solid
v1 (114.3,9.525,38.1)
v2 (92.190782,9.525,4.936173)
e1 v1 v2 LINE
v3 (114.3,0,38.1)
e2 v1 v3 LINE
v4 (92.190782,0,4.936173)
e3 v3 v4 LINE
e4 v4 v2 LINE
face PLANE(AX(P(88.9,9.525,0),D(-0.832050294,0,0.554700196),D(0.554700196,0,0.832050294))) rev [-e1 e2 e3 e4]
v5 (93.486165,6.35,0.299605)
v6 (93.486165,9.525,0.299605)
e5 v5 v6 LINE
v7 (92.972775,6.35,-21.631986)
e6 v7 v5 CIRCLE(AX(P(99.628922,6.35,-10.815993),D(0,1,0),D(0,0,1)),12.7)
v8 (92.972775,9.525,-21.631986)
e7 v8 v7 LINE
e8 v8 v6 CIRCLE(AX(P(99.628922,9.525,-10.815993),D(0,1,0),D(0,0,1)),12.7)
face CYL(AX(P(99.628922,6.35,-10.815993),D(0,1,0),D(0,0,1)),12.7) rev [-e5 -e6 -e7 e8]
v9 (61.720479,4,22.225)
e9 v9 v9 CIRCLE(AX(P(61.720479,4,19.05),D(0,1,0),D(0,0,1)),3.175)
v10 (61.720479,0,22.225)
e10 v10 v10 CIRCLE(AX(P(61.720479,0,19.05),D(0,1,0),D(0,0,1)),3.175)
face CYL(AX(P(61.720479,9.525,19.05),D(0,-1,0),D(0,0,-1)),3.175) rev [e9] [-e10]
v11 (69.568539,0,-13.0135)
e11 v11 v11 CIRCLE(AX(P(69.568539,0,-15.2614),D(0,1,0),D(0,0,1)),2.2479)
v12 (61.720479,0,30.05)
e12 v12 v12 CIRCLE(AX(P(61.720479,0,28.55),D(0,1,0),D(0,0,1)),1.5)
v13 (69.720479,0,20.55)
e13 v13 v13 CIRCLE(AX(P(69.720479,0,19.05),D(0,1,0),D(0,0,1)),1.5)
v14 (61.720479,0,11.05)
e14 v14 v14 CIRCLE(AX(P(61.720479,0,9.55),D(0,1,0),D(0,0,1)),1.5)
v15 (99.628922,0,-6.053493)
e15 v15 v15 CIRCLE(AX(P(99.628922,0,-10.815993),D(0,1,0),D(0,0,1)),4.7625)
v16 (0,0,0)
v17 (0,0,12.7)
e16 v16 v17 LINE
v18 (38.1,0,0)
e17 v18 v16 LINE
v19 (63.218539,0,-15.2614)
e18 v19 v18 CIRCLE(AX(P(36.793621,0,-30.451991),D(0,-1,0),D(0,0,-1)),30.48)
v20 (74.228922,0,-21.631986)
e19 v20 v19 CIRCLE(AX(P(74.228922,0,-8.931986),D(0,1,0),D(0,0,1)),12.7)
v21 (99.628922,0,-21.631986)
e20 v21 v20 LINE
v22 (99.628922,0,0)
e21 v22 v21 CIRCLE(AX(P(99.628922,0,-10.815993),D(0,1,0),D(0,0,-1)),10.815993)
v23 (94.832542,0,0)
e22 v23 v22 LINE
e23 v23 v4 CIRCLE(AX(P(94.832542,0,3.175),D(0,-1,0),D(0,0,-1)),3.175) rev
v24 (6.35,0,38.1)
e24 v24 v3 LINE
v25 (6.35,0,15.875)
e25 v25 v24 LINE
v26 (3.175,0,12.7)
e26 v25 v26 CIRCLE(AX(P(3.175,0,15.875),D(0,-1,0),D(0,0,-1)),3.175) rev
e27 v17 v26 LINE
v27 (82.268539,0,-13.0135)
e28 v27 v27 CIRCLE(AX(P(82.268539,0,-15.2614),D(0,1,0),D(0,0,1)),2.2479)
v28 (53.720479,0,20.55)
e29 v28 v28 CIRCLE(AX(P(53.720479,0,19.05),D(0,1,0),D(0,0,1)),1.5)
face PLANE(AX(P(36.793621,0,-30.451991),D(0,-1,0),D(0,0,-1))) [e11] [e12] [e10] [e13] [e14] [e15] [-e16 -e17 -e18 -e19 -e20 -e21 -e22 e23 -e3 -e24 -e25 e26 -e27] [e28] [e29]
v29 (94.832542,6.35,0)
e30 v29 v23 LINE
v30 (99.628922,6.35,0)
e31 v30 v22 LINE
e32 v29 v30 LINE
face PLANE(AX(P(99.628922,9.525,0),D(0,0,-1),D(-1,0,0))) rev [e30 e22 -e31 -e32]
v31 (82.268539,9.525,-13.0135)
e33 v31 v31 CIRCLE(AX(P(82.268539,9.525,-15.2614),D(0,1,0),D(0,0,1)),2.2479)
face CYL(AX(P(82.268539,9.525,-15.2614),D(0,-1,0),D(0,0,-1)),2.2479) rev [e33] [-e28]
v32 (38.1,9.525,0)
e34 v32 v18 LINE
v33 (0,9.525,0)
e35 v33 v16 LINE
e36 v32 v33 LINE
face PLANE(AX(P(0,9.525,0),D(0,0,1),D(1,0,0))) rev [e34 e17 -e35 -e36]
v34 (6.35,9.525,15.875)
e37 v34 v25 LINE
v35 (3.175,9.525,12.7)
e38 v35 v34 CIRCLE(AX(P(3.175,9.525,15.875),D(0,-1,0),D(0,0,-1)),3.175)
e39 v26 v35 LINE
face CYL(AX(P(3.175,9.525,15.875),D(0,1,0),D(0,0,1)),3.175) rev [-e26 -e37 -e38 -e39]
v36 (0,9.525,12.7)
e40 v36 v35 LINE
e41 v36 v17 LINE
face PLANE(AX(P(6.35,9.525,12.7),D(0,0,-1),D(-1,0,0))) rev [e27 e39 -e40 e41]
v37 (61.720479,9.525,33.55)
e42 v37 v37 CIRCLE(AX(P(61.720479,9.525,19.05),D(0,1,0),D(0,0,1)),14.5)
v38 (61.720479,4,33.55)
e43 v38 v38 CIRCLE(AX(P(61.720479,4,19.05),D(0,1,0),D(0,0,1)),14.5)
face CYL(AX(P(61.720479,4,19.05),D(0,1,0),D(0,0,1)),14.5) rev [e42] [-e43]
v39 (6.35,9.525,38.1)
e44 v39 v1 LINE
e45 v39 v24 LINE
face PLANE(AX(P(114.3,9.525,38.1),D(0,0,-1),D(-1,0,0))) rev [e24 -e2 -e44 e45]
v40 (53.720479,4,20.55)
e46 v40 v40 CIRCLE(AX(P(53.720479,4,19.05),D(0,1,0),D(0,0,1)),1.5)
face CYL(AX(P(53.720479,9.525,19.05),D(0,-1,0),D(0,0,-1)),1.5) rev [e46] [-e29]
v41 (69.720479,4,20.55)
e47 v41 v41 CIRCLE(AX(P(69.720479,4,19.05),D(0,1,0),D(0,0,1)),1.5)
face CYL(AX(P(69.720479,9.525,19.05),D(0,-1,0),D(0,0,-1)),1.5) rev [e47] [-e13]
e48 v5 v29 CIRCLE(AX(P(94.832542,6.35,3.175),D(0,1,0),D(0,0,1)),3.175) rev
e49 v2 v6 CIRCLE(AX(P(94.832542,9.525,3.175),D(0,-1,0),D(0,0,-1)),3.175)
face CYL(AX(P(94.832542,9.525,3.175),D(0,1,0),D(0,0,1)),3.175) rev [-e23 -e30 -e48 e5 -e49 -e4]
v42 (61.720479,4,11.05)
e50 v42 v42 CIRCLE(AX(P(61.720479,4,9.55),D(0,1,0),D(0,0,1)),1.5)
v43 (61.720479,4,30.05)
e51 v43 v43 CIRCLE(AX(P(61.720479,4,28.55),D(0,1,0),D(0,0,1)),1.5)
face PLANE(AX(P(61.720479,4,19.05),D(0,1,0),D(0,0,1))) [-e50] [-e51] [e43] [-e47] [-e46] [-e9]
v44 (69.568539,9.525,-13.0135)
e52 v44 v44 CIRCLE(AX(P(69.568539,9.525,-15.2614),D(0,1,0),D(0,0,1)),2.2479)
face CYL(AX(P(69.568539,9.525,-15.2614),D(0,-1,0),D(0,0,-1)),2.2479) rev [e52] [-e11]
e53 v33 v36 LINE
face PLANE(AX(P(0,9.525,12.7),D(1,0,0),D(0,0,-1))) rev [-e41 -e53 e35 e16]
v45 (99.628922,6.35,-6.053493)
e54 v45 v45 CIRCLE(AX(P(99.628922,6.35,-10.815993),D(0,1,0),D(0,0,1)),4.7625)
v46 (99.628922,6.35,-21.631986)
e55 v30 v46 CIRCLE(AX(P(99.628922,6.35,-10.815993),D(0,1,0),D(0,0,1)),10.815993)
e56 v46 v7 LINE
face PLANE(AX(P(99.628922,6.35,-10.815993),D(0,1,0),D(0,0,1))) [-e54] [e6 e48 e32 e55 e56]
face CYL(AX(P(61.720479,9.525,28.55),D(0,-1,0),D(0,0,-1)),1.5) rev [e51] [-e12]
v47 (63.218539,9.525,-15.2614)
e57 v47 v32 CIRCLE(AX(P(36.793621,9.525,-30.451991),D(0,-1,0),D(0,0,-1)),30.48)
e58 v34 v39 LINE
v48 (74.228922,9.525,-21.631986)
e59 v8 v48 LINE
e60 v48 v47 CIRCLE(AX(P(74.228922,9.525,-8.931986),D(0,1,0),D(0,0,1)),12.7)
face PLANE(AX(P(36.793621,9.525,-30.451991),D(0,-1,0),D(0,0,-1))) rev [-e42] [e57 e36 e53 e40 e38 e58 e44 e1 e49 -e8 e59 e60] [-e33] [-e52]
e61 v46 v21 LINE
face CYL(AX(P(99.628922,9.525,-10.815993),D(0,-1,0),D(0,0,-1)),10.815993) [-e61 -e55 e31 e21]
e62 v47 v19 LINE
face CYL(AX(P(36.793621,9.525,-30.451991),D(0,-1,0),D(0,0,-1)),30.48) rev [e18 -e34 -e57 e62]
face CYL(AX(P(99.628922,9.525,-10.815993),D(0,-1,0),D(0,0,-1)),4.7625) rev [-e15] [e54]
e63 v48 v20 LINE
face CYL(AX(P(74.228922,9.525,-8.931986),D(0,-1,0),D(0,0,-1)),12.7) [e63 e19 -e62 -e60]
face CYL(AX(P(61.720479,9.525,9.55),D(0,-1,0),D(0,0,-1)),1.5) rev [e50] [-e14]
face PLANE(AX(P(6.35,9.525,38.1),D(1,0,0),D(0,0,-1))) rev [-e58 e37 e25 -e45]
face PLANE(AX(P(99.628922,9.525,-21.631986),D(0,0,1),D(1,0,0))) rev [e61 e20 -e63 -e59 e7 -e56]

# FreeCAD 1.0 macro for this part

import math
import FreeCAD as App
import Part
import Sketcher
from FreeCAD import Vector
Q = App.Units.Quantity


def edges_at(feature, points):
    """Names of the edges that pass closest to the given points."""
    edges = feature.Shape.Edges
    near = lambda p: min(range(len(edges)), key=lambda i: edges[i].distToShape(Part.Vertex(*p))[0])
    return sorted({f"Edge{near(p) + 1}" for p in points})

doc = App.newDocument("Part")
body = doc.addObject("PartDesign::Body", "Body")

# Sketch on XZ plane
sketch1 = body.newObject("Sketcher::SketchObject", "Sketch")
sketch1.AttachmentSupport = (doc.getObject("XZ_Plane"), [""])
sketch1.MapMode = "FlatFace"
sketch1.addGeometry([
    Part.LineSegment(Vector(38.1, 0, 0), Vector(0, 0, 0)),  # 0
    Part.LineSegment(Vector(0, 0, 0), Vector(0, 12.7, 0)),  # 1
    Part.LineSegment(Vector(0, 12.7, 0), Vector(6.35, 12.7, 0)),  # 2
    Part.LineSegment(Vector(6.35, 12.7, 0), Vector(6.35, 38.1, 0)),  # 3
    Part.LineSegment(Vector(6.35, 38.1, 0), Vector(114.3, 38.1, 0)),  # 4
    Part.LineSegment(Vector(114.3, 38.1, 0), Vector(88.9, 0, 0)),  # 5
    Part.LineSegment(Vector(88.9, 0, 0), Vector(99.628922, 0, 0)),  # 6
    Part.ArcOfCircle(Part.Circle(Vector(99.628922, -10.815993, 0), Vector(0, 0, 1), 10.815993), math.radians(-90), math.radians(90)),  # 7
    Part.LineSegment(Vector(99.628922, -21.631986, 0), Vector(74.228922, -21.631986, 0)),  # 8
    Part.ArcOfCircle(Part.Circle(Vector(74.228922, -8.931986, 0), Vector(0, 0, 1), 12.7), math.radians(-150.107187), math.radians(-90)),  # 9
    Part.ArcOfCircle(Part.Circle(Vector(36.793621, -30.451991, 0), Vector(0, 0, 1), 30.48), math.radians(29.892813), math.radians(87.543538)),  # 10
    Part.Circle(Vector(69.720479, 19.05, 0), Vector(0, 0, 1), 1.5),  # 11
    Part.Circle(Vector(61.720479, 28.55, 0), Vector(0, 0, 1), 1.5),  # 12
    Part.Circle(Vector(61.720479, 19.05, 0), Vector(0, 0, 1), 3.175),  # 13
    Part.Circle(Vector(53.720479, 19.05, 0), Vector(0, 0, 1), 1.5),  # 14
    Part.Circle(Vector(61.720479, 9.55, 0), Vector(0, 0, 1), 1.5),  # 15
    Part.Circle(Vector(99.628922, -10.815993, 0), Vector(0, 0, 1), 4.7625),  # 16
    Part.Circle(Vector(82.268539, -15.2614, 0), Vector(0, 0, 1), 2.2479),  # 17
    Part.Circle(Vector(69.568539, -15.2614, 0), Vector(0, 0, 1), 2.2479),  # 18
], False)
sketch1.addConstraint([
    Sketcher.Constraint("Coincident", 0, 2, 1, 1),
    Sketcher.Constraint("Coincident", 1, 2, 2, 1),
    Sketcher.Constraint("Coincident", 2, 2, 3, 1),
    Sketcher.Constraint("Coincident", 3, 2, 4, 1),
    Sketcher.Constraint("Coincident", 4, 2, 5, 1),
    Sketcher.Constraint("Coincident", 5, 2, 6, 1),
    Sketcher.Constraint("Coincident", 6, 2, 7, 2),
    Sketcher.Constraint("Coincident", 7, 1, 8, 1),
    Sketcher.Constraint("Coincident", 8, 2, 9, 2),
    Sketcher.Constraint("Coincident", 9, 1, 10, 1),
    Sketcher.Constraint("Coincident", 10, 2, 0, 1),
    Sketcher.Constraint("Horizontal", 0),
    Sketcher.Constraint("Vertical", 1),
    Sketcher.Constraint("Horizontal", 2),
    Sketcher.Constraint("Vertical", 3),
    Sketcher.Constraint("Horizontal", 4),
    Sketcher.Constraint("Horizontal", 6),
    Sketcher.Constraint("Horizontal", 8),
    Sketcher.Constraint("Coincident", 0, 2, -1, 1),
    Sketcher.Constraint("Coincident", 16, 3, 7, 3),
    Sketcher.Constraint("PointOnObject", 5, 2, -1),
    Sketcher.Constraint("Radius", 9, Q("0.5 in")),
    Sketcher.Constraint("Radius", 10, Q("1.2 in")),
    Sketcher.Constraint("Diameter", 13, Q("0.25 in")),
    Sketcher.Constraint("DistanceX", 8, 2, 8, 1, Q("1 in")),
    Sketcher.Constraint("DistanceY", 3, 1, 3, 2, Q("1 in")),
    Sketcher.Constraint("Diameter", 16, Q("0.375 in")),
    Sketcher.Constraint("Diameter", 17, Q("0.177 in")),
    Sketcher.Constraint("Diameter", 18, Q("0.177 in")),
    Sketcher.Constraint("DistanceX", 0, 2, 0, 1, Q("1.5 in")),
    Sketcher.Constraint("DistanceY", 1, 1, 1, 2, Q("0.5 in")),
    Sketcher.Constraint("DistanceX", 9, 3, 7, 3, Q("1 in")),
    Sketcher.Constraint("DistanceX", 9, 3, 6, 2, Q("1 in")),
    Sketcher.Constraint("DistanceX", 2, 1, 2, 2, Q("0.25 in")),
    Sketcher.Constraint("DistanceX", 4, 1, 4, 2, Q("4.25 in")),
    Sketcher.Constraint("DistanceX", -1, 1, 5, 2, Q("3.5 in")),
    Sketcher.Constraint("DistanceX", 18, 3, 17, 3, Q("0.5 in")),
    Sketcher.Constraint("Diameter", 11, 3.0),
    Sketcher.Constraint("Diameter", 12, 3.0),
    Sketcher.Constraint("Diameter", 14, 3.0),
    Sketcher.Constraint("Diameter", 15, 3.0),
    Sketcher.Constraint("DistanceY", -1, 1, 11, 3, Q("0.75 in")),
    Sketcher.Constraint("DistanceY", -1, 1, 13, 3, Q("0.75 in")),
    Sketcher.Constraint("DistanceY", -1, 1, 14, 3, Q("0.75 in")),
    Sketcher.Constraint("DistanceX", 9, 1, 18, 3, Q("0.25 in")),
    Sketcher.Constraint("Radius", 7, 10.815993),
    Sketcher.Constraint("DistanceY", -1, 1, 12, 3, 28.55),
    Sketcher.Constraint("DistanceY", -1, 1, 15, 3, 9.55),
    Sketcher.Constraint("DistanceY", 17, 3, -1, 1, 15.2614),
    Sketcher.Constraint("DistanceY", 18, 3, -1, 1, 15.2614),
    Sketcher.Constraint("DistanceY", 9, 1, -1, 1, 15.2614),
    Sketcher.Constraint("DistanceX", 10, 3, 9, 3, 37.435301),
    Sketcher.Constraint("DistanceX", 12, 3, 11, 3, 8.0),
    Sketcher.Constraint("DistanceX", 13, 3, 11, 3, 8.0),
    Sketcher.Constraint("DistanceX", 14, 3, 13, 3, 8.0),
    Sketcher.Constraint("DistanceX", 15, 3, 11, 3, 8.0),
    Sketcher.Constraint("DistanceX", -1, 1, 11, 3, 69.720479),
    Sketcher.Constraint("DistanceX", -1, 1, 7, 1, 99.628922),
])
pad1 = body.newObject("PartDesign::Pad", "Pad")
pad1.Profile = sketch1
pad1.Length = Q("0.375 in")
pad1.Reversed = True
doc.recompute()

fillet = body.newObject("PartDesign::Fillet", "Fillet")
fillet.Base = (pad1, edges_at(pad1, [(88.9, 4.763, 0)]))
fillet.Radius = Q("0.125 in")
doc.recompute()

fillet2 = body.newObject("PartDesign::Fillet", "Fillet001")
fillet2.Base = (fillet, edges_at(fillet, [(6.35, 4.763, 12.7)]))
fillet2.Radius = Q("0.125 in")

# Sketch on XZ plane
sketch2 = body.newObject("Sketcher::SketchObject", "Sketch001")
sketch2.AttachmentSupport = (doc.getObject("XZ_Plane"), [""])
sketch2.MapMode = "FlatFace"
sketch2.AttachmentOffset = App.Placement(Vector(0, 0, -0.375 * 25.4), App.Rotation())
sketch2.addGeometry(Part.Circle(Vector(62, 19, 0), Vector(0, 0, 1), 14), False)
sketch2.addConstraint([
    Sketcher.Constraint("Diameter", 0, 29.0),
    Sketcher.Constraint("DistanceY", -1, 1, 0, 3, Q("0.75 in")),
    Sketcher.Constraint("DistanceX", -1, 1, 0, 3, 61.720479),
])
pocket1 = body.newObject("PartDesign::Pocket", "Pocket")
pocket1.Profile = sketch2
pocket1.Length = 5.525
pocket1.Reversed = True

# Sketch on XZ plane
sketch3 = body.newObject("Sketcher::SketchObject", "Sketch002")
sketch3.AttachmentSupport = (doc.getObject("XZ_Plane"), [""])
sketch3.MapMode = "FlatFace"
sketch3.AttachmentOffset = App.Placement(Vector(0, 0, -0.375 * 25.4), App.Rotation())
sketch3.addGeometry(Part.Circle(Vector(100, -11, 0), Vector(0, 0, 1), 13), False)
sketch3.addConstraint([
    Sketcher.Constraint("Diameter", 0, Q("1 in")),
    Sketcher.Constraint("DistanceX", -1, 1, 0, 3, 99.628922),
    Sketcher.Constraint("DistanceY", 0, 3, -1, 1, 10.815993),
])
pocket2 = body.newObject("PartDesign::Pocket", "Pocket001")
pocket2.Profile = sketch3
pocket2.Length = Q("0.125 in")
pocket2.Reversed = True

doc.recompute()
